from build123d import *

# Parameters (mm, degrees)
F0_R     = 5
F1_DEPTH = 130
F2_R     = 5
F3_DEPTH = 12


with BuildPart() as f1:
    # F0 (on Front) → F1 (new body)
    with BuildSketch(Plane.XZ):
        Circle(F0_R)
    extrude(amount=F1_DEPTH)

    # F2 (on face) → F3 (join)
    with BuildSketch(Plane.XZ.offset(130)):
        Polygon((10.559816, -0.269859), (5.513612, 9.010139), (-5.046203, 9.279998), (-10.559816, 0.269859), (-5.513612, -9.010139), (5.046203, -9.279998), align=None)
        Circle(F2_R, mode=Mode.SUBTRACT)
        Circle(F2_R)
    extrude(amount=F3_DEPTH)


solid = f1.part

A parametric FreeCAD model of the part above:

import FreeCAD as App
import Part
import Sketcher
from FreeCAD import Vector
Q = App.Units.Quantity

doc = App.newDocument("Part")
body = doc.addObject("PartDesign::Body", "Body")

# Sketch on XZ plane
sketch1 = doc.addObject("Sketcher::SketchObject", "Sketch")
body.addObject(sketch1)
sketch1.AttachmentSupport = (doc.XZ_Plane, [""])
sketch1.MapMode = "FlatFace"
sketch1.addGeometry(Part.Circle(Vector(0, 0, 0), Vector(0, 0, 1), 5), False)
sketch1.addConstraint([
    Sketcher.Constraint("Coincident", 0, 3, -1, 1),
    Sketcher.Constraint("Diameter", 0, Q("10 mm")),
])
pad1 = doc.addObject("PartDesign::Pad", "Pad")
body.addObject(pad1)
pad1.Profile = sketch1
pad1.Length = 130

# Sketch on XZ plane
sketch2 = doc.addObject("Sketcher::SketchObject", "Sketch001")
body.addObject(sketch2)
sketch2.AttachmentSupport = (doc.XZ_Plane, [""])
sketch2.MapMode = "FlatFace"
sketch2.AttachmentOffset = App.Placement(Vector(0, 0, 130), App.Rotation())
sketch2.addGeometry([
    Part.LineSegment(Vector(11, 0, 0), Vector(6, 9, 0)),  # 0
    Part.LineSegment(Vector(6, 9, 0), Vector(-5, 9, 0)),  # 1
    Part.LineSegment(Vector(-5, 9, 0), Vector(-11, 0, 0)),  # 2
    Part.LineSegment(Vector(-11, 0, 0), Vector(-6, -9, 0)),  # 3
    Part.LineSegment(Vector(-6, -9, 0), Vector(5, -9, 0)),  # 4
    Part.LineSegment(Vector(5, -9, 0), Vector(11, 0, 0)),  # 5
], False)
sketch2.addConstraint([
    Sketcher.Constraint("Coincident", 0, 2, 1, 1),
    Sketcher.Constraint("Coincident", 1, 2, 2, 1),
    Sketcher.Constraint("Coincident", 2, 2, 3, 1),
    Sketcher.Constraint("Coincident", 3, 2, 4, 1),
    Sketcher.Constraint("Coincident", 4, 2, 5, 1),
    Sketcher.Constraint("Coincident", 5, 2, 0, 1),
    Sketcher.Constraint("Symmetric", 0, 2, 3, 2, -1, 1),
    Sketcher.Constraint("Symmetric", 1, 2, 4, 2, -1, 1),
    Sketcher.Constraint("Symmetric", 2, 2, 5, 2, -1, 1),
    Sketcher.Constraint("Equal", 0, 1),
    Sketcher.Constraint("Equal", 1, 2),
    Sketcher.Constraint("DistanceY", -1, 1, 1, 2, Q("9.279998 mm")),
    Sketcher.Constraint("DistanceY", 3, 2, 2, 2, Q("9.279998 mm")),
    Sketcher.Constraint("DistanceY", -1, 1, 0, 2, Q("9.010139 mm")),
    Sketcher.Constraint("DistanceX", 2, 2, 0, 2, Q("16.073428 mm")),
])
pad2 = doc.addObject("PartDesign::Pad", "Pad001")
body.addObject(pad2)
pad2.Profile = sketch2
pad2.Length = 12

doc.recompute()
